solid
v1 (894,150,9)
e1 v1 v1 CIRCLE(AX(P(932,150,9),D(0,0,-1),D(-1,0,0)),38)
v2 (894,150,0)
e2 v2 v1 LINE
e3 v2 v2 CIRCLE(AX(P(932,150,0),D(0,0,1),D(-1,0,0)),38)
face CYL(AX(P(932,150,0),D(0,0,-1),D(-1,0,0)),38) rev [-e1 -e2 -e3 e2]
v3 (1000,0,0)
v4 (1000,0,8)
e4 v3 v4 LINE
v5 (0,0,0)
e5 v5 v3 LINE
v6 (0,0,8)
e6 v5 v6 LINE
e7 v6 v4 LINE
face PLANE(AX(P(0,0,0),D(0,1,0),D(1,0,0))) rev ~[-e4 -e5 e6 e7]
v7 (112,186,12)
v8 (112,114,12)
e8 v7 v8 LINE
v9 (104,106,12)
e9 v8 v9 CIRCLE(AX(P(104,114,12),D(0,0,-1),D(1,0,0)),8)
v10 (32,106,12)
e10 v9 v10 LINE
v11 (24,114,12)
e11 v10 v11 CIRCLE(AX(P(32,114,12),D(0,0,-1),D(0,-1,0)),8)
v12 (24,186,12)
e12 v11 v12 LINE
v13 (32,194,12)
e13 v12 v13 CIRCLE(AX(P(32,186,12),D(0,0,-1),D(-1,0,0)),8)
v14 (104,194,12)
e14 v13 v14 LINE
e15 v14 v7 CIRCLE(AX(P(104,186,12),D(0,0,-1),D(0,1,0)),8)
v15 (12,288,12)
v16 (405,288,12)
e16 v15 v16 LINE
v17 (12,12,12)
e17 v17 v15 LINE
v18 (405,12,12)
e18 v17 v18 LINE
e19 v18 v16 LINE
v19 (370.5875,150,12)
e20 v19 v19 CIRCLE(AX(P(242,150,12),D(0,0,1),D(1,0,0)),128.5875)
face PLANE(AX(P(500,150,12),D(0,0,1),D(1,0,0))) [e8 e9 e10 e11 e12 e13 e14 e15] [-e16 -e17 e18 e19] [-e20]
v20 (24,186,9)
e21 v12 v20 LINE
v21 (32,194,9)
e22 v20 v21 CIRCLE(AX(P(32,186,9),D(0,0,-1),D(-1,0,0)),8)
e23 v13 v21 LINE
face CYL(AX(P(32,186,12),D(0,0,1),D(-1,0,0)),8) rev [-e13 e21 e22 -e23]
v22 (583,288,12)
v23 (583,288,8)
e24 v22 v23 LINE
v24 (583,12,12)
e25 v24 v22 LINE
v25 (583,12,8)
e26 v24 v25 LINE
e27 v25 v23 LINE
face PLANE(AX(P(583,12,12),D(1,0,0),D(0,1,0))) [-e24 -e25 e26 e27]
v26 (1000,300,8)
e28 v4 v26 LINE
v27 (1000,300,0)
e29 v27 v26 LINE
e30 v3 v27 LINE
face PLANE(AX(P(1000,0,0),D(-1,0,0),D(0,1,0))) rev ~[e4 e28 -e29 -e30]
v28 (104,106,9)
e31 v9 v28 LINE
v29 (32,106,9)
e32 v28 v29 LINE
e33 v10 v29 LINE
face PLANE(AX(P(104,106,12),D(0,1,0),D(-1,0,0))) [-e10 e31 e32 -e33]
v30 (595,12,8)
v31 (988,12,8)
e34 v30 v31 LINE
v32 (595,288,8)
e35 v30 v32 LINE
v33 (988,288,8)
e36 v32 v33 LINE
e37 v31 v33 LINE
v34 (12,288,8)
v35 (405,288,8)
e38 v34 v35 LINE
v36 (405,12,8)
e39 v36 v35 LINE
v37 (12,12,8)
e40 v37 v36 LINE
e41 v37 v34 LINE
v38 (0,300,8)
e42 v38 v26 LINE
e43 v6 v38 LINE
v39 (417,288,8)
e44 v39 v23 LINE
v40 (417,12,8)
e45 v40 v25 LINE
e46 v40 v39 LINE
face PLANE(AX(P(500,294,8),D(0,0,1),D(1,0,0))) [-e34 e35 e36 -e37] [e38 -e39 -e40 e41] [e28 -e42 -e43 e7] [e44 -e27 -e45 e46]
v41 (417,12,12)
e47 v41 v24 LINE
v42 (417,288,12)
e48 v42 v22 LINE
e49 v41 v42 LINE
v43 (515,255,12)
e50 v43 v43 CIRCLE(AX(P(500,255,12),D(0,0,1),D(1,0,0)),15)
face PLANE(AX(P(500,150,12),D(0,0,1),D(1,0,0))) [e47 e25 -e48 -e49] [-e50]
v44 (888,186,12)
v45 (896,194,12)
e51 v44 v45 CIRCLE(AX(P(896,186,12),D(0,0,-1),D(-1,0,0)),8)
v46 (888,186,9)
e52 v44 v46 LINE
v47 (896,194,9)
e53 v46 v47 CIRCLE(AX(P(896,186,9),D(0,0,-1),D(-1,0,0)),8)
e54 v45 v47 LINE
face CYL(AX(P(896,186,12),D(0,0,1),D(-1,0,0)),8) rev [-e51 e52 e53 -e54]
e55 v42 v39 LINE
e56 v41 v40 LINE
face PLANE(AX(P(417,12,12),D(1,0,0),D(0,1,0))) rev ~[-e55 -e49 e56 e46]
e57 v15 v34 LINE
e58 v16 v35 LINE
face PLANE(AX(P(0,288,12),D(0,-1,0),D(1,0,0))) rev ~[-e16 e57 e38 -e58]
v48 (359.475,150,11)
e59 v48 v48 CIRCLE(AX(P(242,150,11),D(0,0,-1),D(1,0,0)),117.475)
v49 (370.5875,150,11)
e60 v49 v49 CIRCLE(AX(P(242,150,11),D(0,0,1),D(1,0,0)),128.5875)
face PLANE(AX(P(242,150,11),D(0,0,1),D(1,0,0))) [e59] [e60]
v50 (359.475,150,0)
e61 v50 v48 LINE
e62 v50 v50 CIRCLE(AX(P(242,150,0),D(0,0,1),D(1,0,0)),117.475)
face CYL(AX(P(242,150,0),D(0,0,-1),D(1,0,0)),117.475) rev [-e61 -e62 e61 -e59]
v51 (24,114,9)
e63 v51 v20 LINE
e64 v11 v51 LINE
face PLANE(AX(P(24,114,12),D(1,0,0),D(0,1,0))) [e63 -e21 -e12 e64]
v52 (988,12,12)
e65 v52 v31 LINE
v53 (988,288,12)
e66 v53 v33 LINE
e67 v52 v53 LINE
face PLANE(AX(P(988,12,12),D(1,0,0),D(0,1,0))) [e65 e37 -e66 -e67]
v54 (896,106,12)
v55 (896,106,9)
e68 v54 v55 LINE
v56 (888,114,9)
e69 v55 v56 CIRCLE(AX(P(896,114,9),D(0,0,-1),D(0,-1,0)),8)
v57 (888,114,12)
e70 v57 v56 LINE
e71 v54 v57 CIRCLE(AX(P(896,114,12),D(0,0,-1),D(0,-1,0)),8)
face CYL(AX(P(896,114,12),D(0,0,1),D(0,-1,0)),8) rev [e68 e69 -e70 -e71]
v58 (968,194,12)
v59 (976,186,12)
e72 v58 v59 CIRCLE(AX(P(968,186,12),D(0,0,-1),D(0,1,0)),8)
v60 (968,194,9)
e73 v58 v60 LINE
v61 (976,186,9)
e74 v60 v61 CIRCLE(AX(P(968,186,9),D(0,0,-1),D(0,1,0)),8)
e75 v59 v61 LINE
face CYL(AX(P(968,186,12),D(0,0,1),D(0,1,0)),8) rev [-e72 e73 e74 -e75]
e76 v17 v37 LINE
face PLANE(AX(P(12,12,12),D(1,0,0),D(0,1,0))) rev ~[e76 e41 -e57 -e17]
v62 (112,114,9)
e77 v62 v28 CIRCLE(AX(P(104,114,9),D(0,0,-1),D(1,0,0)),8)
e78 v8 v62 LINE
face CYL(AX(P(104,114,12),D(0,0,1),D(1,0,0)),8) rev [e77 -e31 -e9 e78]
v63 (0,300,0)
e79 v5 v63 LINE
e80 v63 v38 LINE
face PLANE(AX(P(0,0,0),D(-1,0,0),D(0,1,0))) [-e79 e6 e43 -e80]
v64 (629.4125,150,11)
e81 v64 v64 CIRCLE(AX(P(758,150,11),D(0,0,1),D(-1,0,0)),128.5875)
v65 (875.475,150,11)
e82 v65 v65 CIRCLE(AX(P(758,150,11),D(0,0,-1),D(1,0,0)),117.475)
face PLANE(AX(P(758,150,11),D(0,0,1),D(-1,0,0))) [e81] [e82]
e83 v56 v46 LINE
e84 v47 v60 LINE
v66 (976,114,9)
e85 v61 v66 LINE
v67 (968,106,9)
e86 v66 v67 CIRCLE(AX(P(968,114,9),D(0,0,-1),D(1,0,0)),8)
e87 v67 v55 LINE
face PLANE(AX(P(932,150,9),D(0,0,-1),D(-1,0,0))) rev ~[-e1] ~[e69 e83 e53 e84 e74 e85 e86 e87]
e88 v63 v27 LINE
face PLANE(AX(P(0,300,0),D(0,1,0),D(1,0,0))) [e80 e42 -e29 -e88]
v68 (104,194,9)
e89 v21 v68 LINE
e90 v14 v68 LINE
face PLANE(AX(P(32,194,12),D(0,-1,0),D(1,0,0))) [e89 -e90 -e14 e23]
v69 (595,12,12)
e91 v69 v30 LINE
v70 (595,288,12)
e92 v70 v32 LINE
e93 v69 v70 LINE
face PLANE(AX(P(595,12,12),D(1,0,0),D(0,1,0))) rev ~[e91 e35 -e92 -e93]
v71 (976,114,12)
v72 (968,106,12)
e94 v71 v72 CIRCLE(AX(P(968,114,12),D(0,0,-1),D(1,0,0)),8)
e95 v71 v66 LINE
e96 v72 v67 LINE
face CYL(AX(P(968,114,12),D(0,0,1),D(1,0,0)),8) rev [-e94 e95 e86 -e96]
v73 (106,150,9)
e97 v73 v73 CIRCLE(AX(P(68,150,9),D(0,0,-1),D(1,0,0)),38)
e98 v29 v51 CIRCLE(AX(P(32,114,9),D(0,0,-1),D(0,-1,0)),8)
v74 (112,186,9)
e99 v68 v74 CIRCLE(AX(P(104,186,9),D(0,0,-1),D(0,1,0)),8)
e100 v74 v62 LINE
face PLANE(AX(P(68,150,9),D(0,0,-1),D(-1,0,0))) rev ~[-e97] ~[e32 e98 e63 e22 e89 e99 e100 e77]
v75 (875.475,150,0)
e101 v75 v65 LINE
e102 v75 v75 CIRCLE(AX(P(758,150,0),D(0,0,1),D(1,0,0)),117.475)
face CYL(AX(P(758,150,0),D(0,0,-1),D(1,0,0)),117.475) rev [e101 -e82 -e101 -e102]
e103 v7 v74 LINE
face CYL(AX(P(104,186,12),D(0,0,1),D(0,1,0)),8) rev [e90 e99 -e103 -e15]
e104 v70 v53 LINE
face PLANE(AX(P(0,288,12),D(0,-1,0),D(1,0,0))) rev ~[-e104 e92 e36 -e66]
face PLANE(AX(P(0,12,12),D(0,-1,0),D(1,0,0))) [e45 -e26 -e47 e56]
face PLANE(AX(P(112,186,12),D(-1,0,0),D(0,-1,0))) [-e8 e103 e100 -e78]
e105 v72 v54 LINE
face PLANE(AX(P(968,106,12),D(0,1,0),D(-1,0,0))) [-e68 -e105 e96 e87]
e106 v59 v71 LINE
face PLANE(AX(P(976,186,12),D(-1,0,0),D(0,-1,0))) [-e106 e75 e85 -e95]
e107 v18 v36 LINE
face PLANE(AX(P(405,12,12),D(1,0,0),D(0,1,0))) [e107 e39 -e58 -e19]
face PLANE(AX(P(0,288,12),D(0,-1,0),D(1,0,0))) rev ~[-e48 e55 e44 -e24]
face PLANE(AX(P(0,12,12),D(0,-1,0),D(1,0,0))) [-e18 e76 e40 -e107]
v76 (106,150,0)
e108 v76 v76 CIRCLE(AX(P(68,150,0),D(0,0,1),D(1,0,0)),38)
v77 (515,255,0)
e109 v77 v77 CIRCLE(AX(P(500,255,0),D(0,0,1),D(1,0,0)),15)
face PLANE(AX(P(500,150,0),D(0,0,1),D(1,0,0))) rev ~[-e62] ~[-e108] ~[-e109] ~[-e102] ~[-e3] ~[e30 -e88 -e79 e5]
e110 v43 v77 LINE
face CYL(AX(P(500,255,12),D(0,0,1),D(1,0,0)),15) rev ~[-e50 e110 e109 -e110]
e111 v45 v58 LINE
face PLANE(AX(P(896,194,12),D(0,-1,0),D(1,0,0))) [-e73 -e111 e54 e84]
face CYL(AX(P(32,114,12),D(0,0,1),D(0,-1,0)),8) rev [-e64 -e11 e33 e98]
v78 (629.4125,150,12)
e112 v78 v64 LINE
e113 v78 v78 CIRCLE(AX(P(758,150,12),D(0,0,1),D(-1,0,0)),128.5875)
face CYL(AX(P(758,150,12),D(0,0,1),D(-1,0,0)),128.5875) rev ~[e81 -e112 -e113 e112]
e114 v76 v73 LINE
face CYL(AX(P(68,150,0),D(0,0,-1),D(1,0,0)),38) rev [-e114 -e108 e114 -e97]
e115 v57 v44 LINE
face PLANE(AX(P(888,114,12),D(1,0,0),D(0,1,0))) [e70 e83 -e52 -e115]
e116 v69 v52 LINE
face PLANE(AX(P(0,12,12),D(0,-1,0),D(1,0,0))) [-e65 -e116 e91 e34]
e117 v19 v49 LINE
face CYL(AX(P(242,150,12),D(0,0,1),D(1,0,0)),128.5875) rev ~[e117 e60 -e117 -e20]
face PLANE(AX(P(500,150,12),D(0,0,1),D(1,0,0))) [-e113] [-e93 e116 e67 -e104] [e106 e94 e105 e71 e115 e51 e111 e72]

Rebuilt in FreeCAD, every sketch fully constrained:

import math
import FreeCAD as App
import Part
import Sketcher
from FreeCAD import Vector
Q = App.Units.Quantity


def add_polygon(sketch, points):
    """Adds a closed chain of lines whose ends are joined by coincident constraints."""
    first, n = sketch.GeometryCount, len(points)
    for a, b in zip(points, points[1:] + points[:1]):
        sketch.addGeometry(Part.LineSegment(App.Vector(*a, 0), App.Vector(*b, 0)), False)
    for i in range(n):
        sketch.addConstraint(Sketcher.Constraint("Coincident", first + i, 2, first + (i + 1) % n, 1))

doc = App.newDocument("Part")
body = doc.addObject("PartDesign::Body", "Body")

# Sketch on XY plane
sketch1 = doc.addObject("Sketcher::SketchObject", "Sketch")
body.addObject(sketch1)
sketch1.AttachmentSupport = (doc.XY_Plane, [""])
sketch1.MapMode = "FlatFace"
add_polygon(sketch1, [(0, 300), (0, 0), (1000, 0), (1000, 300)])  # lines 0-3
sketch1.addGeometry(Part.Circle(Vector(68, 150, 0), Vector(0, 0, 1), 38), False)  # 4
sketch1.addGeometry(Part.Circle(Vector(242, 150, 0), Vector(0, 0, 1), 117), False)  # 5
sketch1.addGeometry(Part.Circle(Vector(758, 150, 0), Vector(0, 0, 1), 117), False)  # 6
sketch1.addGeometry(Part.Circle(Vector(932, 150, 0), Vector(0, 0, 1), 38), False)  # 7
sketch1.addConstraint([
    Sketcher.Constraint("Vertical", 0),
    Sketcher.Constraint("Horizontal", 1),
    Sketcher.Constraint("Vertical", 2),
    Sketcher.Constraint("Horizontal", 3),
    Sketcher.Constraint("Coincident", 0, 2, -1, 1),
    Sketcher.Constraint("Equal", 5, 6),
    Sketcher.Constraint("Equal", 4, 7),
    Sketcher.Constraint("Horizontal", 4, 3, 5, 3),
    Sketcher.Constraint("Horizontal", 5, 3, 6, 3),
    Sketcher.Constraint("Horizontal", 6, 3, 7, 3),
    Sketcher.Constraint("Diameter", 4, Q("76 mm")),
    Sketcher.Constraint("Diameter", 5, Q("234.95 mm")),
    Sketcher.Constraint("DistanceX", 1, 1, 1, 2, Q("1000 mm")),
    Sketcher.Constraint("DistanceY", 0, 2, 0, 1, Q("300 mm")),
    Sketcher.Constraint("DistanceX", -1, 1, 4, 3, Q("68 mm")),
    Sketcher.Constraint("DistanceY", -1, 1, 4, 3, Q("150 mm")),
    Sketcher.Constraint("DistanceX", -1, 1, 5, 3, Q("242 mm")),
    Sketcher.Constraint("DistanceX", -1, 1, 6, 3, Q("758 mm")),
    Sketcher.Constraint("DistanceX", -1, 1, 7, 3, Q("932 mm")),
])
pad1 = doc.addObject("PartDesign::Pad", "Pad")
body.addObject(pad1)
pad1.Profile = sketch1
pad1.Length = 12

# Sketch on XY plane
sketch2 = doc.addObject("Sketcher::SketchObject", "Sketch001")
body.addObject(sketch2)
sketch2.AttachmentSupport = (doc.XY_Plane, [""])
sketch2.MapMode = "FlatFace"
sketch2.AttachmentOffset = App.Placement(Vector(0, 0, 12), App.Rotation())
sketch2.addGeometry([
    Part.LineSegment(Vector(104, 194, 0), Vector(32, 194, 0)),  # 0
    Part.ArcOfCircle(Part.Circle(Vector(32, 186, 0), Vector(0, 0, 1), 8), math.radians(90), math.radians(180)),  # 1
    Part.LineSegment(Vector(24, 186, 0), Vector(24, 114, 0)),  # 2
    Part.ArcOfCircle(Part.Circle(Vector(32, 114, 0), Vector(0, 0, 1), 8), math.radians(-180), math.radians(-90)),  # 3
    Part.LineSegment(Vector(32, 106, 0), Vector(104, 106, 0)),  # 4
    Part.ArcOfCircle(Part.Circle(Vector(104, 114, 0), Vector(0, 0, 1), 8), math.radians(-90), math.radians(0)),  # 5
    Part.LineSegment(Vector(112, 114, 0), Vector(112, 186, 0)),  # 6
    Part.ArcOfCircle(Part.Circle(Vector(104, 186, 0), Vector(0, 0, 1), 8), math.radians(0), math.radians(90)),  # 7
    Part.LineSegment(Vector(896, 106, 0), Vector(968, 106, 0)),  # 8
    Part.ArcOfCircle(Part.Circle(Vector(968, 114, 0), Vector(0, 0, 1), 8), math.radians(-90), math.radians(0)),  # 9
    Part.LineSegment(Vector(976, 114, 0), Vector(976, 186, 0)),  # 10
    Part.ArcOfCircle(Part.Circle(Vector(968, 186, 0), Vector(0, 0, 1), 8), math.radians(0), math.radians(90)),  # 11
    Part.LineSegment(Vector(968, 194, 0), Vector(896, 194, 0)),  # 12
    Part.ArcOfCircle(Part.Circle(Vector(896, 186, 0), Vector(0, 0, 1), 8), math.radians(90), math.radians(180)),  # 13
    Part.LineSegment(Vector(888, 186, 0), Vector(888, 114, 0)),  # 14
    Part.ArcOfCircle(Part.Circle(Vector(896, 114, 0), Vector(0, 0, 1), 8), math.radians(-180), math.radians(-90)),  # 15
], False)
sketch2.addConstraint([
    Sketcher.Constraint("Tangent", 0, 2, 1, 1),
    Sketcher.Constraint("Tangent", 1, 2, 2, 1),
    Sketcher.Constraint("Tangent", 2, 2, 3, 1),
    Sketcher.Constraint("Tangent", 3, 2, 4, 1),
    Sketcher.Constraint("Tangent", 4, 2, 5, 1),
    Sketcher.Constraint("Tangent", 5, 2, 6, 1),
    Sketcher.Constraint("Tangent", 6, 2, 7, 1),
    Sketcher.Constraint("Tangent", 7, 2, 0, 1),
    Sketcher.Constraint("Tangent", 8, 2, 9, 1),
    Sketcher.Constraint("Tangent", 9, 2, 10, 1),
    Sketcher.Constraint("Tangent", 10, 2, 11, 1),
    Sketcher.Constraint("Tangent", 11, 2, 12, 1),
    Sketcher.Constraint("Tangent", 12, 2, 13, 1),
    Sketcher.Constraint("Tangent", 13, 2, 14, 1),
    Sketcher.Constraint("Tangent", 14, 2, 15, 1),
    Sketcher.Constraint("Tangent", 15, 2, 8, 1),
    Sketcher.Constraint("Horizontal", 0),
    Sketcher.Constraint("Vertical", 2),
    Sketcher.Constraint("Horizontal", 4),
    Sketcher.Constraint("Vertical", 6),
    Sketcher.Constraint("Horizontal", 8),
    Sketcher.Constraint("Vertical", 10),
    Sketcher.Constraint("Horizontal", 12),
    Sketcher.Constraint("Vertical", 14),
    Sketcher.Constraint("Equal", 1, 3),
    Sketcher.Constraint("Equal", 3, 5),
    Sketcher.Constraint("Equal", 5, 7),
    Sketcher.Constraint("Equal", 7, 9),
    Sketcher.Constraint("Equal", 9, 11),
    Sketcher.Constraint("Equal", 11, 13),
    Sketcher.Constraint("Equal", 13, 15),
    Sketcher.Constraint("Horizontal", 5, 3, 9, 3),
    Sketcher.Constraint("Horizontal", 7, 3, 11, 3),
    Sketcher.Constraint("Equal", 4, 8),
    Sketcher.Constraint("Equal", 12, 2),
    Sketcher.Constraint("Radius", 1, Q("8 mm")),
    Sketcher.Constraint("DistanceX", 0, 2, 0, 1, Q("72 mm")),
    Sketcher.Constraint("DistanceX", -1, 1, 1, 3, Q("32 mm")),
    Sketcher.Constraint("DistanceY", -1, 1, 1, 3, Q("186 mm")),
    Sketcher.Constraint("DistanceX", -1, 1, 9, 3, Q("968 mm")),
])
pocket1 = doc.addObject("PartDesign::Pocket", "Pocket")
body.addObject(pocket1)
pocket1.Profile = sketch2
pocket1.Length = 3

# Sketch on XY plane
sketch3 = doc.addObject("Sketcher::SketchObject", "Sketch002")
body.addObject(sketch3)
sketch3.AttachmentSupport = (doc.XY_Plane, [""])
sketch3.MapMode = "FlatFace"
sketch3.AttachmentOffset = App.Placement(Vector(0, 0, 12), App.Rotation())
sketch3.addGeometry(Part.Circle(Vector(500, 255, 0), Vector(0, 0, 1), 15), False)
sketch3.addConstraint([
    Sketcher.Constraint("Diameter", 0, Q("30 mm")),
    Sketcher.Constraint("DistanceX", -1, 1, 0, 3, Q("500 mm")),
    Sketcher.Constraint("DistanceY", -1, 1, 0, 3, Q("255 mm")),
])
pocket2 = doc.addObject("PartDesign::Pocket", "Pocket001")
body.addObject(pocket2)
pocket2.Profile = sketch3
pocket2.Length = 12

# Sketch on XY plane
sketch4 = doc.addObject("Sketcher::SketchObject", "Sketch003")
body.addObject(sketch4)
sketch4.AttachmentSupport = (doc.XY_Plane, [""])
sketch4.MapMode = "FlatFace"
sketch4.AttachmentOffset = App.Placement(Vector(0, 0, 12), App.Rotation())
add_polygon(sketch4, [(0, 300), (0, 288), (1000, 288), (1000, 300)])  # lines 0-3
add_polygon(sketch4, [(0, 12), (0, 0), (1000, 0), (1000, 12)])  # lines 4-7
sketch4.addConstraint([
    Sketcher.Constraint("Vertical", 0),
    Sketcher.Constraint("Horizontal", 1),
    Sketcher.Constraint("Vertical", 2),
    Sketcher.Constraint("Horizontal", 3),
    Sketcher.Constraint("Vertical", 4),
    Sketcher.Constraint("Horizontal", 5),
    Sketcher.Constraint("Vertical", 6),
    Sketcher.Constraint("Horizontal", 7),
    Sketcher.Constraint("Coincident", 4, 2, -1, 1),
    Sketcher.Constraint("PointOnObject", 0, 2, -2),
    Sketcher.Constraint("Vertical", 2, 2, 5, 2),
    Sketcher.Constraint("Equal", 2, 4),
    Sketcher.Constraint("DistanceX", 1, 1, 1, 2, Q("1000 mm")),
    Sketcher.Constraint("DistanceY", 0, 2, 0, 1, Q("12 mm")),
    Sketcher.Constraint("DistanceY", -1, 1, 0, 2, Q("288 mm")),
])
pocket3 = doc.addObject("PartDesign::Pocket", "Pocket002")
body.addObject(pocket3)
pocket3.Profile = sketch4
pocket3.Length = 4

# Sketch on XY plane
sketch5 = doc.addObject("Sketcher::SketchObject", "Sketch004")
body.addObject(sketch5)
sketch5.AttachmentSupport = (doc.XY_Plane, [""])
sketch5.MapMode = "FlatFace"
sketch5.AttachmentOffset = App.Placement(Vector(0, 0, 12), App.Rotation())
add_polygon(sketch5, [(0, 288), (0, 12), (12, 12), (12, 288)])  # lines 0-3
add_polygon(sketch5, [(988, 288), (988, 12), (1000, 12), (1000, 288)])  # lines 4-7
add_polygon(sketch5, [(405, 288), (405, 12), (417, 12), (417, 288)])  # lines 8-11
add_polygon(sketch5, [(583, 288), (583, 12), (595, 12), (595, 288)])  # lines 12-15
sketch5.addConstraint([
    Sketcher.Constraint("Vertical", 0),
    Sketcher.Constraint("Horizontal", 1),
    Sketcher.Constraint("Vertical", 2),
    Sketcher.Constraint("Horizontal", 3),
    Sketcher.Constraint("Vertical", 4),
    Sketcher.Constraint("Horizontal", 5),
    Sketcher.Constraint("Vertical", 6),
    Sketcher.Constraint("Horizontal", 7),
    Sketcher.Constraint("Vertical", 8),
    Sketcher.Constraint("Horizontal", 9),
    Sketcher.Constraint("Vertical", 10),
    Sketcher.Constraint("Horizontal", 11),
    Sketcher.Constraint("Vertical", 12),
    Sketcher.Constraint("Horizontal", 13),
    Sketcher.Constraint("Vertical", 14),
    Sketcher.Constraint("Horizontal", 15),
    Sketcher.Constraint("PointOnObject", 0, 2, -2),
    Sketcher.Constraint("Horizontal", 1, 2, 4, 2),
    Sketcher.Constraint("Horizontal", 3, 2, 6, 2),
    Sketcher.Constraint("Horizontal", 5, 2, 8, 2),
    Sketcher.Constraint("Horizontal", 7, 2, 10, 2),
    Sketcher.Constraint("Horizontal", 9, 2, 12, 2),
    Sketcher.Constraint("Horizontal", 11, 2, 14, 2),
    Sketcher.Constraint("Equal", 3, 5),
    Sketcher.Constraint("Equal", 7, 9),
    Sketcher.Constraint("Equal", 11, 13),
    Sketcher.Constraint("DistanceX", 1, 1, 1, 2, Q("12 mm")),
    Sketcher.Constraint("DistanceY", 0, 2, 0, 1, Q("276 mm")),
    Sketcher.Constraint("DistanceY", -1, 1, 0, 2, Q("12 mm")),
    Sketcher.Constraint("DistanceX", -1, 1, 4, 2, Q("988 mm")),
    Sketcher.Constraint("DistanceX", -1, 1, 8, 2, Q("405 mm")),
    Sketcher.Constraint("DistanceX", -1, 1, 12, 2, Q("583 mm")),
])
pocket4 = doc.addObject("PartDesign::Pocket", "Pocket003")
body.addObject(pocket4)
pocket4.Profile = sketch5
pocket4.Length = 4

# Sketch on XY plane
sketch6 = doc.addObject("Sketcher::SketchObject", "Sketch005")
body.addObject(sketch6)
sketch6.AttachmentSupport = (doc.XY_Plane, [""])
sketch6.MapMode = "FlatFace"
sketch6.AttachmentOffset = App.Placement(Vector(0, 0, 12), App.Rotation())
sketch6.addGeometry([
    Part.Circle(Vector(242, 150, 0), Vector(0, 0, 1), 129),
    Part.Circle(Vector(758, 150, 0), Vector(0, 0, 1), 129),
], False)
sketch6.addConstraint([
    Sketcher.Constraint("Equal", 0, 1),
    Sketcher.Constraint("Horizontal", 0, 3, 1, 3),
    Sketcher.Constraint("Diameter", 0, Q("257.175 mm")),
    Sketcher.Constraint("DistanceX", -1, 1, 0, 3, Q("242 mm")),
    Sketcher.Constraint("DistanceY", -1, 1, 0, 3, Q("150 mm")),
    Sketcher.Constraint("DistanceX", -1, 1, 1, 3, Q("758 mm")),
])
pocket5 = doc.addObject("PartDesign::Pocket", "Pocket004")
body.addObject(pocket5)
pocket5.Profile = sketch6
pocket5.Length = 1

doc.recompute()
